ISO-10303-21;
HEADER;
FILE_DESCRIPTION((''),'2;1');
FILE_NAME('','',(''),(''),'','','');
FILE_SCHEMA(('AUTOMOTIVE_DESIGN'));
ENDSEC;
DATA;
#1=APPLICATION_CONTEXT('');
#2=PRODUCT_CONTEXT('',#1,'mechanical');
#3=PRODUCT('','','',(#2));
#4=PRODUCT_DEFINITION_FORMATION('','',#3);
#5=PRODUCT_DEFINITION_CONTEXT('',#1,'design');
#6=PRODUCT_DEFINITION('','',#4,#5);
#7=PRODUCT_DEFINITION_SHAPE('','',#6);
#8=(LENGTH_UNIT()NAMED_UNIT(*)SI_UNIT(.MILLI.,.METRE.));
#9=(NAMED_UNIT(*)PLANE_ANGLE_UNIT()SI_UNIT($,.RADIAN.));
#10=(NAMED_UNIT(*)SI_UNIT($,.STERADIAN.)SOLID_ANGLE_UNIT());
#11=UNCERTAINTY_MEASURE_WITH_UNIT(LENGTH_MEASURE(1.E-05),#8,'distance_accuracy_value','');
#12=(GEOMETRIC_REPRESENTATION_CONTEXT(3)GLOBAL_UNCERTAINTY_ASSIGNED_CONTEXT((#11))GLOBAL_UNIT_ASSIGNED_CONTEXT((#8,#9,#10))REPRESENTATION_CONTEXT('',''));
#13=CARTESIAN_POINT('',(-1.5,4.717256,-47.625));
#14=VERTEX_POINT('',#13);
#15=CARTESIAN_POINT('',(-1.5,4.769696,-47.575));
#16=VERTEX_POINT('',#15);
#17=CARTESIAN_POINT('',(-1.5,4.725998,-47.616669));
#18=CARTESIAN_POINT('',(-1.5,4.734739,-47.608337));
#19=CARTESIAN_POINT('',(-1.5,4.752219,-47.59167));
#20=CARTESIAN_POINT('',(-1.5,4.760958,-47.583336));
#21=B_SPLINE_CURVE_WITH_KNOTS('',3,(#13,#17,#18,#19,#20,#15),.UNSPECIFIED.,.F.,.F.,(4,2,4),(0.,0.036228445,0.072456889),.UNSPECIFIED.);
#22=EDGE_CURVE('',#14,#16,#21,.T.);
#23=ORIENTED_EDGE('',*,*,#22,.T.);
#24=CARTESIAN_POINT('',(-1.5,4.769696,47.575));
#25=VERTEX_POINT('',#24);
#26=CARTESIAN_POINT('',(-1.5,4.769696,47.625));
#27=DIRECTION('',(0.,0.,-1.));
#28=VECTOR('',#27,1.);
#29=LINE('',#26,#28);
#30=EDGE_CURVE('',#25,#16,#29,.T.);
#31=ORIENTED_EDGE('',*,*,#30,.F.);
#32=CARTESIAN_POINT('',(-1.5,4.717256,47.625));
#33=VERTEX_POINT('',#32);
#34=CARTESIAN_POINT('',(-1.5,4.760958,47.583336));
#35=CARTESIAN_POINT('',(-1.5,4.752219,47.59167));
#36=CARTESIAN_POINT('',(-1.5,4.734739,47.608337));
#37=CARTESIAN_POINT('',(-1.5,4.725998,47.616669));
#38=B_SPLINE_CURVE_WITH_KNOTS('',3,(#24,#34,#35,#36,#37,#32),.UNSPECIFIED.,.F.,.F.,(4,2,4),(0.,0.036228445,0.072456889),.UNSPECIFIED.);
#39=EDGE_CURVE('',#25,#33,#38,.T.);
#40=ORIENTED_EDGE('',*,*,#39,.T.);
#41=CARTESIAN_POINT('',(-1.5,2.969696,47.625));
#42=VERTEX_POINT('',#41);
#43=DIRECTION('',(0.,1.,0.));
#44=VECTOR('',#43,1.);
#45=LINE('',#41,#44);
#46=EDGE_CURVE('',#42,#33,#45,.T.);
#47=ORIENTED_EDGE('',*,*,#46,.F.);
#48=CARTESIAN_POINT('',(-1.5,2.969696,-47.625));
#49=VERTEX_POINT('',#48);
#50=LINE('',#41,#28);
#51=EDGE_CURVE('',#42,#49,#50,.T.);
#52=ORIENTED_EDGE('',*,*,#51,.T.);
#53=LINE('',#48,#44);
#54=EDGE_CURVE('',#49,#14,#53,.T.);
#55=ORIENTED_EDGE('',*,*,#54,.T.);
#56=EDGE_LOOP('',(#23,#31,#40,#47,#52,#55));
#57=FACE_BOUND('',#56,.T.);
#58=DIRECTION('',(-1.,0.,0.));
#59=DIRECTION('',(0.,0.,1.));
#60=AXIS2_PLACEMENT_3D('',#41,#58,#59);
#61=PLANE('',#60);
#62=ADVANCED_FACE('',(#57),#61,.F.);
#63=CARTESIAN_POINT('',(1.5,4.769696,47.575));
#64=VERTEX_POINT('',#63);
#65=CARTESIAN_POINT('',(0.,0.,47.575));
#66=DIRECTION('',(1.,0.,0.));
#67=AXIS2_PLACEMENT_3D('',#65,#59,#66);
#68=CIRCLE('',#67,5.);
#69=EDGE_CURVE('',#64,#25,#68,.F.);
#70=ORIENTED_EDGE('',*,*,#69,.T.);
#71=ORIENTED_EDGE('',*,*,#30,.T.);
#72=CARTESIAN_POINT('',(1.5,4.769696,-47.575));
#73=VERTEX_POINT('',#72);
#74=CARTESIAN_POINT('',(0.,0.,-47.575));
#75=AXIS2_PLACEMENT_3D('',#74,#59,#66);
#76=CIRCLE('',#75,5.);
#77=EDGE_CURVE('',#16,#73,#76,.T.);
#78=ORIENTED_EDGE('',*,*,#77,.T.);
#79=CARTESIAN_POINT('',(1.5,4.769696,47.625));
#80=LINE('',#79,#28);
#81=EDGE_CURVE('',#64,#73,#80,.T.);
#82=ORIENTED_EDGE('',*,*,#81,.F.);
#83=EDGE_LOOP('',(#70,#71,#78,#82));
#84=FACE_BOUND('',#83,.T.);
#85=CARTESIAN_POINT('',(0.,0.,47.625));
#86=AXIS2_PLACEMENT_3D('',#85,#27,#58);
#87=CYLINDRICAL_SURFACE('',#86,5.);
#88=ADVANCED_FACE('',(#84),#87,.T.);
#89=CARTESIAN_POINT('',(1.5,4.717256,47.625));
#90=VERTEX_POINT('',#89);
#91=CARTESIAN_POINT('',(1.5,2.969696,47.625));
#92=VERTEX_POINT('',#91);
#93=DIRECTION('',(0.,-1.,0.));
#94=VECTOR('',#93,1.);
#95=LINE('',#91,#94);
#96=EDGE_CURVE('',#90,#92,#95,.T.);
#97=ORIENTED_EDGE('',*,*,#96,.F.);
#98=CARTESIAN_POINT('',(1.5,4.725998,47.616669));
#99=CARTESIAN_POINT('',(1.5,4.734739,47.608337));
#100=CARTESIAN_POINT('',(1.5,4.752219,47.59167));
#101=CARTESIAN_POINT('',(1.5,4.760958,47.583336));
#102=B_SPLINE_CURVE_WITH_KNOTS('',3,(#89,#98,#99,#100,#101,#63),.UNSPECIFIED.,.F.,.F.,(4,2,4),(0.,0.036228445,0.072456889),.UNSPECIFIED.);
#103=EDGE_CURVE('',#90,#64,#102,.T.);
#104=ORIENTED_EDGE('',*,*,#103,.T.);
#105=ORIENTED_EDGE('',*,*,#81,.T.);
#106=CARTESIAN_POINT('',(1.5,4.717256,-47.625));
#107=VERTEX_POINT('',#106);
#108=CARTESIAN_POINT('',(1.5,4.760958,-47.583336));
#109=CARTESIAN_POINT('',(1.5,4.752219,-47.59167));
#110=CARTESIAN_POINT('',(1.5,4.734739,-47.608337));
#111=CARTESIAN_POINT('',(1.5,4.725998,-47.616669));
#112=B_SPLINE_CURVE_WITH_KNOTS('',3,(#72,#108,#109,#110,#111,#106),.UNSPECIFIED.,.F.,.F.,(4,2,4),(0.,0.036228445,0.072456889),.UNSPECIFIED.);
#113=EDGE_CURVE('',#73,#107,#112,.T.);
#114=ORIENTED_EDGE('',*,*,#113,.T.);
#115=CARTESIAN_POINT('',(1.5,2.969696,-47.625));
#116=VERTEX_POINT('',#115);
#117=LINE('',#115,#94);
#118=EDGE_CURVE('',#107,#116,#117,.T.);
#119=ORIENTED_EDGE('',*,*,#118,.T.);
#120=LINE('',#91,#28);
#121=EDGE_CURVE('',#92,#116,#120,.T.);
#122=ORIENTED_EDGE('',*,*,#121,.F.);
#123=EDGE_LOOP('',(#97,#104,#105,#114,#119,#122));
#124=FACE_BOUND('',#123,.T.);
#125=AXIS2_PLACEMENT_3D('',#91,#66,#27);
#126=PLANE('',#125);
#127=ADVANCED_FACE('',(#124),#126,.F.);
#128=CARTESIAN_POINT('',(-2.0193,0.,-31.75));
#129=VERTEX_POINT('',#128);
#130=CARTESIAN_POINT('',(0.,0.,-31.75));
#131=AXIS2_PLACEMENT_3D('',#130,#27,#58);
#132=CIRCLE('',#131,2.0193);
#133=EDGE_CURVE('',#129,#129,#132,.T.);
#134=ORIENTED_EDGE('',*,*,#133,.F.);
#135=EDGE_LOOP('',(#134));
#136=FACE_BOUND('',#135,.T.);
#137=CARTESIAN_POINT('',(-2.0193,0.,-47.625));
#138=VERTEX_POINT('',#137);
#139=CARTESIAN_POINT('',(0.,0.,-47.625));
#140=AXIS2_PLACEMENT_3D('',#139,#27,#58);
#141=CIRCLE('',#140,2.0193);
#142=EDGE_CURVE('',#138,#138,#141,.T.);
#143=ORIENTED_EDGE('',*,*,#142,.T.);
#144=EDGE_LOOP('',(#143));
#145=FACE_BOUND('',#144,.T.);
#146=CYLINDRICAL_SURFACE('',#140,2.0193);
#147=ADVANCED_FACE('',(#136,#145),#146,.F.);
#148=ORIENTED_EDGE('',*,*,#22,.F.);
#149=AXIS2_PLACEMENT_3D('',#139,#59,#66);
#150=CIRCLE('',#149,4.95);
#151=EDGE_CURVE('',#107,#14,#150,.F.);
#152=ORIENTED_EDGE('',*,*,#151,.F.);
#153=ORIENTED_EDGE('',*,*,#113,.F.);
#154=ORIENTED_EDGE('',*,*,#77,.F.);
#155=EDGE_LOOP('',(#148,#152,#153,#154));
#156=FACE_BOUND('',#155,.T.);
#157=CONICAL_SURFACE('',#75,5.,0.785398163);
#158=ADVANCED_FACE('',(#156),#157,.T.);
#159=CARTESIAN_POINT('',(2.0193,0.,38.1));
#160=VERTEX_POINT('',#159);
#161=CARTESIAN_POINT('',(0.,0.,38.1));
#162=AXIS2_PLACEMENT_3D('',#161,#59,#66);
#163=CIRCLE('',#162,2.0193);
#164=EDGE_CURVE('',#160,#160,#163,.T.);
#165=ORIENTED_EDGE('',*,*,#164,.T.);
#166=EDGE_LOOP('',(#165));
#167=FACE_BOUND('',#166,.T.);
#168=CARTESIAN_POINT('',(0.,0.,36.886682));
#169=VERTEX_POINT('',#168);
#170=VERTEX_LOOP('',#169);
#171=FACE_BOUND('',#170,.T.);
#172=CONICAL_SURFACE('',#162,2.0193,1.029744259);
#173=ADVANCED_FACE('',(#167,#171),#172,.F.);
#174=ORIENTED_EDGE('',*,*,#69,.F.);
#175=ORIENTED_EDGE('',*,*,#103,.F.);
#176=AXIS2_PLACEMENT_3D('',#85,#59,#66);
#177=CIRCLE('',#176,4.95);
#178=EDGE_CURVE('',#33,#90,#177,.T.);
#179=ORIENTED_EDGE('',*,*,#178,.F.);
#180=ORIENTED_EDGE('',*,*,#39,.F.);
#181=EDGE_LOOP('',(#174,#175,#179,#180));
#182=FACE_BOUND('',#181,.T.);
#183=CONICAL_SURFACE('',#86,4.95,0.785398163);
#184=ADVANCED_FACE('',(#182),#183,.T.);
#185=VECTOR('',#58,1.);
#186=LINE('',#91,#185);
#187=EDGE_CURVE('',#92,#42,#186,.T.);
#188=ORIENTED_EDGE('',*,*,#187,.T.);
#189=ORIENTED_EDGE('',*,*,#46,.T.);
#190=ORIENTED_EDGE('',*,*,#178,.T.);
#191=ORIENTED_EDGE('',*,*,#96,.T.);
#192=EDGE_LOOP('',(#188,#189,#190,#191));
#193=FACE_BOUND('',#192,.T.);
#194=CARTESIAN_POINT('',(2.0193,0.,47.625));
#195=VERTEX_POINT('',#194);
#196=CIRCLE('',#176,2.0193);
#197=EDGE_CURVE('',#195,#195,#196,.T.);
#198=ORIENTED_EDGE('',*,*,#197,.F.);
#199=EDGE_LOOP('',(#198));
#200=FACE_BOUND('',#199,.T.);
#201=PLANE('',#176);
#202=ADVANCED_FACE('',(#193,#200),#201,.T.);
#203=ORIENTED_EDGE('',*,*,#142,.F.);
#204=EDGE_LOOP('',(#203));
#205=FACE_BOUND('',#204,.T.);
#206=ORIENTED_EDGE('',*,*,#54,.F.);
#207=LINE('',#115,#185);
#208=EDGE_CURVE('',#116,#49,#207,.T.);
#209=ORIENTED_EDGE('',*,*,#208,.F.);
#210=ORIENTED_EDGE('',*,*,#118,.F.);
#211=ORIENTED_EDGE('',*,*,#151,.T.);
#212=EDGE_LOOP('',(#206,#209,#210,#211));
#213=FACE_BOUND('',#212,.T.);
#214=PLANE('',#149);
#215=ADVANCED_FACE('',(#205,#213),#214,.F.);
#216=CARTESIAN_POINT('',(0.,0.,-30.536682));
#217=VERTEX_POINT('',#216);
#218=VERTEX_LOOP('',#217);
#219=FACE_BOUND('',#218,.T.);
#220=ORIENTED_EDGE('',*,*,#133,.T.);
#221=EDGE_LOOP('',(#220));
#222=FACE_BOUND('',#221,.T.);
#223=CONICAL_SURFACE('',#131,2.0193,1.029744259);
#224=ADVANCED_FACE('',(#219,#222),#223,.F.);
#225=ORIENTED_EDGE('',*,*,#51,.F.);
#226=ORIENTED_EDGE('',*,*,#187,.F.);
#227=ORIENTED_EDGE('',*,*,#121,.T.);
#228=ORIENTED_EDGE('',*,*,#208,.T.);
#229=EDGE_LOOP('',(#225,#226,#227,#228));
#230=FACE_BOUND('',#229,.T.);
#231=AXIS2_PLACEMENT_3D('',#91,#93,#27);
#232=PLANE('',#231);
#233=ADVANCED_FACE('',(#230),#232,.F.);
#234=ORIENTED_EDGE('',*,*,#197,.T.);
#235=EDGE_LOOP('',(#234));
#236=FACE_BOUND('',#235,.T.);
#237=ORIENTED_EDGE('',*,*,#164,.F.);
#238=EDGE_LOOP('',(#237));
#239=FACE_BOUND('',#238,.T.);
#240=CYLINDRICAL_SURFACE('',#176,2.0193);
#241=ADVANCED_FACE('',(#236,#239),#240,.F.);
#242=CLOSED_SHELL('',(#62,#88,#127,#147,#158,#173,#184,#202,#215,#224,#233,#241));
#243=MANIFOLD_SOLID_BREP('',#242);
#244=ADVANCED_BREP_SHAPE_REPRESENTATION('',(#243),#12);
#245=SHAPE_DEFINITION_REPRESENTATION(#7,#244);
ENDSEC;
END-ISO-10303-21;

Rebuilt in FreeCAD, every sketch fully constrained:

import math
import FreeCAD as App
import Part
import Sketcher

V = App.Vector
Q = App.Units.Quantity


def edges_at(feature, points):
    """Names of the edges that pass closest to the given points."""
    edges = feature.Shape.Edges
    near = lambda p: min(range(len(edges)), key=lambda i: edges[i].distToShape(Part.Vertex(*p))[0])
    return sorted({f"Edge{near(p) + 1}" for p in points})

doc = App.newDocument("Part")
body = doc.addObject("PartDesign::Body", "Body")

sketch1 = body.newObject("Sketcher::SketchObject", "Sketch")
sketch1.AttachmentSupport = (doc.getObject("XY_Plane"), [""])
sketch1.MapMode = "FlatFace"
sketch1.addGeometry([
    Part.LineSegment(V(-1.5, 3, 0), V(-1.5, 4.8, 0)),
    Part.ArcOfCircle(Part.Circle(V(0, 0, 0), V(0, 0, 1), 5), math.radians(107), math.radians(433)),
    Part.LineSegment(V(1.5, 4.8, 0), V(1.5, 3, 0)),
    Part.LineSegment(V(1.5, 3, 0), V(-1.5, 3, 0)),
], False)
sketch1.addConstraint([
    Sketcher.Constraint("Coincident", 0, 2, 1, 1),
    Sketcher.Constraint("Coincident", 1, 2, 2, 1),
    Sketcher.Constraint("Coincident", 2, 2, 3, 1),
    Sketcher.Constraint("Coincident", 3, 2, 0, 1),
    Sketcher.Constraint("Vertical", 0),
    Sketcher.Constraint("Vertical", 2),
    Sketcher.Constraint("Horizontal", 3),
    Sketcher.Constraint("Coincident", 1, 3, -1, 1),
    Sketcher.Constraint("Horizontal", 0, 2, 1, 2),
    Sketcher.Constraint("Radius", 1, 5.0),
    Sketcher.Constraint("DistanceX", 3, 2, 3, 1, 3.0),
    Sketcher.Constraint("DistanceY", 0, 1, 0, 2, 1.8),
])
pad1 = body.newObject("PartDesign::Pad", "Pad")
pad1.Profile = sketch1
pad1.Type = "TwoLengths"
pad1.Length = Q("1.875 in")
pad1.Length2 = Q("1.875 in")
doc.recompute()

chamfer = body.newObject("PartDesign::Chamfer", "Chamfer")
chamfer.Base = (pad1, edges_at(pad1, [(0, -5, -47.625), (0, -5, 47.625)]))
chamfer.Size = 0.05

sketch2 = body.newObject("Sketcher::SketchObject", "Sketch001")
sketch2.AttachmentSupport = (doc.getObject("XY_Plane"), [""])
sketch2.MapMode = "FlatFace"
sketch2.AttachmentOffset = App.Placement(V(0, 0, -1.875 * 25.4), App.Rotation())
sketch2.addGeometry(Part.Circle(V(0, 0, 0), V(0, 0, 1), 2), False)
sketch2.addConstraint([
    Sketcher.Constraint("Coincident", 0, 3, -1, 1),
    Sketcher.Constraint("Diameter", 0, Q("0.159 in")),
])
doc.recompute()
hole = body.newObject("PartDesign::Hole", "Hole")
hole.Profile = sketch2
hole.ThreadType = "None"
hole.Diameter = Q("0.159 in")
hole.DepthType = "Dimension"
hole.Depth = Q("0.625 in")
hole.DrillPoint = "Angled"
hole.DrillPointAngle = 118
hole.Reversed = True

sketch3 = body.newObject("Sketcher::SketchObject", "Sketch002")
sketch3.AttachmentSupport = (doc.getObject("XY_Plane"), [""])
sketch3.MapMode = "FlatFace"
sketch3.AttachmentOffset = App.Placement(V(0, 0, 1.875 * 25.4), App.Rotation())
sketch3.addGeometry(Part.Circle(V(0, 0, 0), V(0, 0, 1), 2), False)
sketch3.addConstraint([
    Sketcher.Constraint("Coincident", 0, 3, -1, 1),
    Sketcher.Constraint("Diameter", 0, Q("0.159 in")),
])
doc.recompute()
hole2 = body.newObject("PartDesign::Hole", "Hole001")
hole2.Profile = sketch3
hole2.ThreadType = "None"
hole2.Diameter = Q("0.159 in")
hole2.DepthType = "Dimension"
hole2.Depth = Q("0.375 in")
hole2.DrillPoint = "Angled"
hole2.DrillPointAngle = 118

doc.recompute()
